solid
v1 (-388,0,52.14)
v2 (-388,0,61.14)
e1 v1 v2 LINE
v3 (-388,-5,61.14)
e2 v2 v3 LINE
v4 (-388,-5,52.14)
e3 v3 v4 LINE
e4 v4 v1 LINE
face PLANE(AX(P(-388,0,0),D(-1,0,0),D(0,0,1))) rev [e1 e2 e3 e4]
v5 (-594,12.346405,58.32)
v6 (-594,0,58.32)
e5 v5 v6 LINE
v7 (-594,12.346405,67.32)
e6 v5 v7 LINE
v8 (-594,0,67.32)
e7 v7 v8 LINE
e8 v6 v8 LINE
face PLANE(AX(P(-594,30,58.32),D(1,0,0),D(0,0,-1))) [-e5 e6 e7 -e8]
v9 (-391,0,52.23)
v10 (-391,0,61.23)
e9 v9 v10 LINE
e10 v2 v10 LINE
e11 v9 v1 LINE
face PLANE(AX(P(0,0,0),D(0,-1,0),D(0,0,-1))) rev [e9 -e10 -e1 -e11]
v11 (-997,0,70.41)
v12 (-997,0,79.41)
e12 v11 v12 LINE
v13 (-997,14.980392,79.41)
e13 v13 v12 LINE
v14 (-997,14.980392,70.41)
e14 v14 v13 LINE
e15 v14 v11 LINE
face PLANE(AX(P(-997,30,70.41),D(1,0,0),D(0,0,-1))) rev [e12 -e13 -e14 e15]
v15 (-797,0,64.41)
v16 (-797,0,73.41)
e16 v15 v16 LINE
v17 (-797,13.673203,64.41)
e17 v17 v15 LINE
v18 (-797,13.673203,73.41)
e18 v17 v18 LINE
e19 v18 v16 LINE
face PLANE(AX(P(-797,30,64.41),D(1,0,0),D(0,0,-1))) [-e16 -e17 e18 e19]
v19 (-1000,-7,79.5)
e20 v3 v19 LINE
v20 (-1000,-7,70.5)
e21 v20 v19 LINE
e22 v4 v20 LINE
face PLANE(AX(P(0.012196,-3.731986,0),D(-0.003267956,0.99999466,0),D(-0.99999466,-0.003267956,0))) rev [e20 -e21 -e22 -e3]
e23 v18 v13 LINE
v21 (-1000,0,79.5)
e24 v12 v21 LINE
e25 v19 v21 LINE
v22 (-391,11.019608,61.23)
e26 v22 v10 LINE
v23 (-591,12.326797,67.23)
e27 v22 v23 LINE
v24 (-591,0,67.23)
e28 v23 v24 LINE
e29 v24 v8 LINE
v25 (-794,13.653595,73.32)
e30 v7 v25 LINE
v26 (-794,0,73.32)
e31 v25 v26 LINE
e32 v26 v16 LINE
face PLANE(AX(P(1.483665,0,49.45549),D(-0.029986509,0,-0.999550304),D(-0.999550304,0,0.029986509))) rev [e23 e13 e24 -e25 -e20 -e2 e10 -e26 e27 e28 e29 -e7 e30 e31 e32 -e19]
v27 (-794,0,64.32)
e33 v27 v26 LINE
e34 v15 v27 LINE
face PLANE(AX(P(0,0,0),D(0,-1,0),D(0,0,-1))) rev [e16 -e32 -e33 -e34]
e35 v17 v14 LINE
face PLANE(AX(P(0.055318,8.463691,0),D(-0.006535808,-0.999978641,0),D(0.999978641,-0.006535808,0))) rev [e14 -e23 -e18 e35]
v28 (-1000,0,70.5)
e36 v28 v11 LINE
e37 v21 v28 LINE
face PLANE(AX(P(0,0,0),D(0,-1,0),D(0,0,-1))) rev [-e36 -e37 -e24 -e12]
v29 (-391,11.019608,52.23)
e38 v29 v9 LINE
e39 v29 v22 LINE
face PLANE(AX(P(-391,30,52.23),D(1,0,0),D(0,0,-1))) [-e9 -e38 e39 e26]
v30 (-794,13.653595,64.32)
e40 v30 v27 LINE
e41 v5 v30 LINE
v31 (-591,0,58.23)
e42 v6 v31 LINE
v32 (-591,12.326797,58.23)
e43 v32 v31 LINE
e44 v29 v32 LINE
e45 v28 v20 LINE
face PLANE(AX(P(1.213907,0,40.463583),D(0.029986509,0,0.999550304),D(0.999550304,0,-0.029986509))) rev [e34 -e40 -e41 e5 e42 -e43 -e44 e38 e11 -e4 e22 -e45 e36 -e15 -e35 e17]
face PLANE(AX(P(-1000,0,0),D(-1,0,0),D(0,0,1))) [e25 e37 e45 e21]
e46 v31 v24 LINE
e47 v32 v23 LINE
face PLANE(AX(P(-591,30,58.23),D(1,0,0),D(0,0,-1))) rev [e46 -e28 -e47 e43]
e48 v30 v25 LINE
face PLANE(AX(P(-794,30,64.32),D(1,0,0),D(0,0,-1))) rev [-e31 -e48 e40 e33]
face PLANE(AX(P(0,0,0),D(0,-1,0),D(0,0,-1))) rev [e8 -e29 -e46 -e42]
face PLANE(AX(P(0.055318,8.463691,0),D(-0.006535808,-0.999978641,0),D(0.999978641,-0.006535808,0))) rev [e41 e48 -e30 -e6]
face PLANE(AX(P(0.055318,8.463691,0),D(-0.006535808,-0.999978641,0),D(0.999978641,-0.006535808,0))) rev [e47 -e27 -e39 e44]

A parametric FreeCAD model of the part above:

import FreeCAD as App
import Part
import Sketcher

V = App.Vector

doc = App.newDocument("Part")
body = doc.addObject("PartDesign::Body", "Body")

sketch1 = body.newObject("Sketcher::SketchObject", "Sketch")
sketch1.AttachmentSupport = (doc.getObject("YZ_Plane"), [""])
sketch1.MapMode = "FlatFace"
sketch1.AttachmentOffset = App.Placement(V(0, 0, -1000), App.Rotation())
sketch1.addGeometry([
    Part.LineSegment(V(15, -70, 0), V(-7, -70, 0)),
    Part.LineSegment(V(-7, -70, 0), V(-7, -80, 0)),
    Part.LineSegment(V(-7, -80, 0), V(15, -80, 0)),
    Part.LineSegment(V(15, -80, 0), V(15, -70, 0)),
], False)
sketch1.addConstraint([
    Sketcher.Constraint("Coincident", 0, 2, 1, 1),
    Sketcher.Constraint("Coincident", 1, 2, 2, 1),
    Sketcher.Constraint("Coincident", 2, 2, 3, 1),
    Sketcher.Constraint("Coincident", 3, 2, 0, 1),
    Sketcher.Constraint("Horizontal", 0),
    Sketcher.Constraint("Vertical", 1),
    Sketcher.Constraint("Horizontal", 2),
    Sketcher.Constraint("Vertical", 3),
    Sketcher.Constraint("DistanceX", 0, 2, 0, 1, 22.0),
    Sketcher.Constraint("DistanceY", 1, 2, 1, 1, 9.0),
    Sketcher.Constraint("DistanceX", 0, 2, -1, 1, 7.0),
    Sketcher.Constraint("DistanceY", 0, 2, -1, 1, 70.5),
])

sketch2 = body.newObject("Sketcher::SketchObject", "Sketch001")
sketch2.AttachmentSupport = (doc.getObject("YZ_Plane"), [""])
sketch2.MapMode = "FlatFace"
sketch2.AttachmentOffset = App.Placement(V(0, 0, -388), App.Rotation())
sketch2.addGeometry([
    Part.LineSegment(V(11, -61, 0), V(11, -52, 0)),
    Part.LineSegment(V(11, -52, 0), V(-5, -52, 0)),
    Part.LineSegment(V(-5, -52, 0), V(-5, -61, 0)),
    Part.LineSegment(V(-5, -61, 0), V(11, -61, 0)),
], False)
sketch2.addConstraint([
    Sketcher.Constraint("Coincident", 0, 2, 1, 1),
    Sketcher.Constraint("Coincident", 1, 2, 2, 1),
    Sketcher.Constraint("Coincident", 2, 2, 3, 1),
    Sketcher.Constraint("Coincident", 3, 2, 0, 1),
    Sketcher.Constraint("Vertical", 0),
    Sketcher.Constraint("Horizontal", 1),
    Sketcher.Constraint("Vertical", 2),
    Sketcher.Constraint("Horizontal", 3),
    Sketcher.Constraint("DistanceX", 1, 2, 1, 1, 16.0),
    Sketcher.Constraint("DistanceY", 0, 1, 0, 2, 9.0),
    Sketcher.Constraint("DistanceX", -1, 1, 0, 2, 11.0),
    Sketcher.Constraint("DistanceY", 0, 2, -1, 1, 52.14),
])

additiveloft = body.newObject("PartDesign::AdditiveLoft", "AdditiveLoft")
additiveloft.Profile = sketch1
additiveloft.Sections = [sketch2]

sketch3 = body.newObject("Sketcher::SketchObject", "Sketch002")
sketch3.AttachmentSupport = (doc.getObject("XZ_Plane"), [""])
sketch3.MapMode = "FlatFace"
sketch3.addGeometry([
    Part.LineSegment(V(-1000, -240, 0), V(-1000, 0, 0)),
    Part.LineSegment(V(-1000, 0, 0), V(-997, 0, 0)),
    Part.LineSegment(V(-997, 0, 0), V(-997, -240, 0)),
    Part.LineSegment(V(-997, -240, 0), V(-1000, -240, 0)),
    Part.LineSegment(V(-388, -184.9, 0), V(-391, -185.2, 0)),
    Part.LineSegment(V(-391, -185.2, 0), V(-391, 0, 0)),
    Part.LineSegment(V(-391, 0, 0), V(-388, 0, 0)),
    Part.LineSegment(V(-388, 0, 0), V(-388, -184.9, 0)),
    Part.LineSegment(V(-797, -261.8, 0), V(-797, 0, 0)),
    Part.LineSegment(V(-797, 0, 0), V(-794, 0, 0)),
    Part.LineSegment(V(-794, 0, 0), V(-794, -261.8, 0)),
    Part.LineSegment(V(-794, -261.8, 0), V(-797, -261.8, 0)),
    Part.LineSegment(V(-594, -230.1, 0), V(-594, 0, 0)),
    Part.LineSegment(V(-594, 0, 0), V(-591, 0, 0)),
    Part.LineSegment(V(-591, 0, 0), V(-591, -230.1, 0)),
    Part.LineSegment(V(-591, -230.1, 0), V(-594, -230.1, 0)),
], False)
sketch3.addConstraint([
    Sketcher.Constraint("Coincident", 0, 2, 1, 1),
    Sketcher.Constraint("Coincident", 1, 2, 2, 1),
    Sketcher.Constraint("Coincident", 2, 2, 3, 1),
    Sketcher.Constraint("Coincident", 3, 2, 0, 1),
    Sketcher.Constraint("Coincident", 4, 2, 5, 1),
    Sketcher.Constraint("Coincident", 5, 2, 6, 1),
    Sketcher.Constraint("Coincident", 6, 2, 7, 1),
    Sketcher.Constraint("Coincident", 7, 2, 4, 1),
    Sketcher.Constraint("Coincident", 8, 2, 9, 1),
    Sketcher.Constraint("Coincident", 9, 2, 10, 1),
    Sketcher.Constraint("Coincident", 10, 2, 11, 1),
    Sketcher.Constraint("Coincident", 11, 2, 8, 1),
    Sketcher.Constraint("Coincident", 12, 2, 13, 1),
    Sketcher.Constraint("Coincident", 13, 2, 14, 1),
    Sketcher.Constraint("Coincident", 14, 2, 15, 1),
    Sketcher.Constraint("Coincident", 15, 2, 12, 1),
    Sketcher.Constraint("Vertical", 0),
    Sketcher.Constraint("Horizontal", 1),
    Sketcher.Constraint("Vertical", 2),
    Sketcher.Constraint("Horizontal", 3),
    Sketcher.Constraint("Vertical", 5),
    Sketcher.Constraint("Horizontal", 6),
    Sketcher.Constraint("Vertical", 7),
    Sketcher.Constraint("Vertical", 8),
    Sketcher.Constraint("Horizontal", 9),
    Sketcher.Constraint("Vertical", 10),
    Sketcher.Constraint("Horizontal", 11),
    Sketcher.Constraint("Vertical", 12),
    Sketcher.Constraint("Horizontal", 13),
    Sketcher.Constraint("Vertical", 14),
    Sketcher.Constraint("Horizontal", 15),
    Sketcher.Constraint("PointOnObject", 0, 2, -1),
    Sketcher.Constraint("PointOnObject", 5, 2, -1),
    Sketcher.Constraint("PointOnObject", 8, 2, -1),
    Sketcher.Constraint("PointOnObject", 12, 2, -1),
    Sketcher.Constraint("Equal", 3, 6),
    Sketcher.Constraint("Equal", 6, 9),
    Sketcher.Constraint("Equal", 11, 13),
    Sketcher.Constraint("DistanceX", 1, 1, 1, 2, 3.0),
    Sketcher.Constraint("DistanceY", 0, 1, 0, 2, 240.0),
    Sketcher.Constraint("DistanceX", 0, 2, -1, 1, 1000.0),
    Sketcher.Constraint("DistanceX", 4, 2, -1, 1, 391.0),
    Sketcher.Constraint("DistanceX", 8, 2, -1, 1, 797.0),
    Sketcher.Constraint("DistanceX", 12, 2, -1, 1, 594.0),
    Sketcher.Constraint("DistanceY", 5, 1, 5, 2, 185.19),
    Sketcher.Constraint("DistanceY", 7, 2, 7, 1, 184.92),
    Sketcher.Constraint("DistanceY", 8, 1, 8, 2, 261.761393),
    Sketcher.Constraint("DistanceY", 12, 1, 12, 2, 230.081844),
])
pocket1 = body.newObject("PartDesign::Pocket", "Pocket")
pocket1.Profile = sketch3
pocket1.Length = 20
pocket1.Reversed = True

sketch4 = body.newObject("Sketcher::SketchObject", "Sketch003")
sketch4.AttachmentSupport = (doc.getObject("XZ_Plane"), [""])
sketch4.MapMode = "FlatFace"
sketch4.addGeometry([
    Part.LineSegment(V(-1041, -141, 0), V(-1041, 6, 0)),
    Part.LineSegment(V(-1041, 6, 0), V(-325, 6, 0)),
    Part.LineSegment(V(-325, 6, 0), V(-325, -141, 0)),
    Part.LineSegment(V(-325, -141, 0), V(-1041, -141, 0)),
], False)
sketch4.addConstraint([
    Sketcher.Constraint("Coincident", 0, 2, 1, 1),
    Sketcher.Constraint("Coincident", 1, 2, 2, 1),
    Sketcher.Constraint("Coincident", 2, 2, 3, 1),
    Sketcher.Constraint("Coincident", 3, 2, 0, 1),
    Sketcher.Constraint("Vertical", 0),
    Sketcher.Constraint("Horizontal", 1),
    Sketcher.Constraint("Vertical", 2),
    Sketcher.Constraint("Horizontal", 3),
    Sketcher.Constraint("DistanceY", 0, 1, 0, 2, 147.805869),
    Sketcher.Constraint("DistanceY", -1, 1, 0, 2, 6.3436),
    Sketcher.Constraint("DistanceX", 1, 1, 1, 2, 715.558025),
    Sketcher.Constraint("DistanceX", 1, 2, -1, 1, 325.436868),
])
pocket2 = body.newObject("PartDesign::Pocket", "Pocket001")
pocket2.Profile = sketch4
pocket2.Type = "ThroughAll"
pocket2.Midplane = True
body2 = doc.addObject("PartDesign::Body", "Body001")

sketch5 = body2.newObject("Sketcher::SketchObject", "Sketch004")
sketch5.AttachmentSupport = (doc.getObject("YZ_Plane001"), [""])
sketch5.MapMode = "FlatFace"
sketch5.AttachmentOffset = App.Placement(V(0, 0, -388), App.Rotation())
sketch5.addGeometry([
    Part.LineSegment(V(-5, 61, 0), V(-5, 52, 0)),
    Part.LineSegment(V(-5, 52, 0), V(11, 52, 0)),
    Part.LineSegment(V(11, 52, 0), V(11, 61, 0)),
    Part.LineSegment(V(11, 61, 0), V(-5, 61, 0)),
], False)
sketch5.addConstraint([
    Sketcher.Constraint("Coincident", 0, 2, 1, 1),
    Sketcher.Constraint("Coincident", 1, 2, 2, 1),
    Sketcher.Constraint("Coincident", 2, 2, 3, 1),
    Sketcher.Constraint("Coincident", 3, 2, 0, 1),
    Sketcher.Constraint("Vertical", 0),
    Sketcher.Constraint("Horizontal", 1),
    Sketcher.Constraint("Vertical", 2),
    Sketcher.Constraint("Horizontal", 3),
    Sketcher.Constraint("DistanceX", 1, 1, 1, 2, 16.0),
    Sketcher.Constraint("DistanceY", 0, 2, 0, 1, 9.0),
    Sketcher.Constraint("DistanceX", 0, 2, -1, 1, 5.0),
    Sketcher.Constraint("DistanceY", -1, 1, 0, 2, 52.14),
])

sketch6 = body2.newObject("Sketcher::SketchObject", "Sketch005")
sketch6.AttachmentSupport = (doc.getObject("YZ_Plane001"), [""])
sketch6.MapMode = "FlatFace"
sketch6.AttachmentOffset = App.Placement(V(0, 0, -1000), App.Rotation())
sketch6.addGeometry([
    Part.LineSegment(V(-7, 70, 0), V(-7, 80, 0)),
    Part.LineSegment(V(-7, 80, 0), V(15, 80, 0)),
    Part.LineSegment(V(15, 80, 0), V(15, 70, 0)),
    Part.LineSegment(V(15, 70, 0), V(-7, 70, 0)),
], False)
sketch6.addConstraint([
    Sketcher.Constraint("Coincident", 0, 2, 1, 1),
    Sketcher.Constraint("Coincident", 1, 2, 2, 1),
    Sketcher.Constraint("Coincident", 2, 2, 3, 1),
    Sketcher.Constraint("Coincident", 3, 2, 0, 1),
    Sketcher.Constraint("Vertical", 0),
    Sketcher.Constraint("Horizontal", 1),
    Sketcher.Constraint("Vertical", 2),
    Sketcher.Constraint("Horizontal", 3),
    Sketcher.Constraint("DistanceX", 1, 1, 1, 2, 22.0),
    Sketcher.Constraint("DistanceY", 0, 1, 0, 2, 9.0),
    Sketcher.Constraint("DistanceX", 0, 2, -1, 1, 7.0),
    Sketcher.Constraint("DistanceY", -1, 1, 0, 2, 79.5),
])

additiveloft2 = body2.newObject("PartDesign::AdditiveLoft", "AdditiveLoft001")
additiveloft2.Profile = sketch5
additiveloft2.Sections = [sketch6]

sketch7 = body2.newObject("Sketcher::SketchObject", "Sketch006")
sketch7.AttachmentSupport = (doc.getObject("XZ_Plane001"), [""])
sketch7.MapMode = "FlatFace"
sketch7.addGeometry([
    Part.LineSegment(V(-391, 52.2, 0), V(-391, 61.2, 0)),
    Part.LineSegment(V(-391, 61.2, 0), V(-388, 61.1, 0)),
    Part.LineSegment(V(-388, 61.1, 0), V(-388, 52.1, 0)),
    Part.LineSegment(V(-388, 52.1, 0), V(-391, 52.2, 0)),
    Part.LineSegment(V(-794, 73.3, 0), V(-794, 64.3, 0)),
    Part.LineSegment(V(-794, 64.3, 0), V(-797, 64.4, 0)),
    Part.LineSegment(V(-797, 64.4, 0), V(-797, 73.4, 0)),
    Part.LineSegment(V(-797, 73.4, 0), V(-794, 73.3, 0)),
    Part.LineSegment(V(-997, 79.4, 0), V(-997, 70.4, 0)),
    Part.LineSegment(V(-997, 70.4, 0), V(-1000, 70.5, 0)),
    Part.LineSegment(V(-1000, 70.5, 0), V(-1000, 79.5, 0)),
    Part.LineSegment(V(-1000, 79.5, 0), V(-997, 79.4, 0)),
    Part.LineSegment(V(-594, 58.3, 0), V(-594, 67.3, 0)),
    Part.LineSegment(V(-594, 67.3, 0), V(-591, 67.2, 0)),
    Part.LineSegment(V(-591, 67.2, 0), V(-591, 58.2, 0)),
    Part.LineSegment(V(-591, 58.2, 0), V(-594, 58.3, 0)),
], False)
sketch7.addConstraint([
    Sketcher.Constraint("Coincident", 0, 2, 1, 1),
    Sketcher.Constraint("Coincident", 1, 2, 2, 1),
    Sketcher.Constraint("Coincident", 2, 2, 3, 1),
    Sketcher.Constraint("Coincident", 3, 2, 0, 1),
    Sketcher.Constraint("Coincident", 4, 2, 5, 1),
    Sketcher.Constraint("Coincident", 5, 2, 6, 1),
    Sketcher.Constraint("Coincident", 6, 2, 7, 1),
    Sketcher.Constraint("Coincident", 7, 2, 4, 1),
    Sketcher.Constraint("Coincident", 8, 2, 9, 1),
    Sketcher.Constraint("Coincident", 9, 2, 10, 1),
    Sketcher.Constraint("Coincident", 10, 2, 11, 1),
    Sketcher.Constraint("Coincident", 11, 2, 8, 1),
    Sketcher.Constraint("Coincident", 12, 2, 13, 1),
    Sketcher.Constraint("Coincident", 13, 2, 14, 1),
    Sketcher.Constraint("Coincident", 14, 2, 15, 1),
    Sketcher.Constraint("Coincident", 15, 2, 12, 1),
    Sketcher.Constraint("Vertical", 0),
    Sketcher.Constraint("Vertical", 2),
    Sketcher.Constraint("Vertical", 4),
    Sketcher.Constraint("Vertical", 6),
    Sketcher.Constraint("Vertical", 8),
    Sketcher.Constraint("Vertical", 10),
    Sketcher.Constraint("Vertical", 12),
    Sketcher.Constraint("Vertical", 14),
    Sketcher.Constraint("Parallel", 1, 3),
    Sketcher.Constraint("Parallel", 3, 5),
    Sketcher.Constraint("Parallel", 5, 7),
    Sketcher.Constraint("Parallel", 7, 9),
    Sketcher.Constraint("Parallel", 9, 11),
    Sketcher.Constraint("Parallel", 11, 13),
    Sketcher.Constraint("Parallel", 13, 15),
    Sketcher.Constraint("Equal", 2, 4),
    Sketcher.Constraint("Equal", 6, 8),
    Sketcher.Constraint("Equal", 10, 12),
    Sketcher.Constraint("Equal", 3, 5),
    Sketcher.Constraint("Equal", 7, 9),
    Sketcher.Constraint("Equal", 11, 13),
    Sketcher.Constraint("DistanceY", 0, 1, 0, 2, 9.0),
    Sketcher.Constraint("DistanceX", 0, 2, -1, 1, 391.0),
    Sketcher.Constraint("DistanceX", 1, 2, -1, 1, 388.0),
    Sketcher.Constraint("DistanceX", 4, 2, -1, 1, 794.0),
    Sketcher.Constraint("DistanceX", 8, 2, -1, 1, 997.0),
    Sketcher.Constraint("DistanceX", 12, 2, -1, 1, 594.0),
    Sketcher.Constraint("DistanceY", 8, 2, 6, 2, 3.0),
    Sketcher.Constraint("DistanceY", 4, 2, 12, 2, 3.0),
    Sketcher.Constraint("DistanceY", 0, 2, 13, 2, 6.0),
    Sketcher.Constraint("DistanceY", -1, 1, 9, 2, 70.5),
    Sketcher.Constraint("DistanceY", -1, 1, 0, 2, 61.23),
])
pocket3 = body2.newObject("PartDesign::Pocket", "Pocket002")
pocket3.Profile = sketch7
pocket3.Length = 30

doc.recompute()
